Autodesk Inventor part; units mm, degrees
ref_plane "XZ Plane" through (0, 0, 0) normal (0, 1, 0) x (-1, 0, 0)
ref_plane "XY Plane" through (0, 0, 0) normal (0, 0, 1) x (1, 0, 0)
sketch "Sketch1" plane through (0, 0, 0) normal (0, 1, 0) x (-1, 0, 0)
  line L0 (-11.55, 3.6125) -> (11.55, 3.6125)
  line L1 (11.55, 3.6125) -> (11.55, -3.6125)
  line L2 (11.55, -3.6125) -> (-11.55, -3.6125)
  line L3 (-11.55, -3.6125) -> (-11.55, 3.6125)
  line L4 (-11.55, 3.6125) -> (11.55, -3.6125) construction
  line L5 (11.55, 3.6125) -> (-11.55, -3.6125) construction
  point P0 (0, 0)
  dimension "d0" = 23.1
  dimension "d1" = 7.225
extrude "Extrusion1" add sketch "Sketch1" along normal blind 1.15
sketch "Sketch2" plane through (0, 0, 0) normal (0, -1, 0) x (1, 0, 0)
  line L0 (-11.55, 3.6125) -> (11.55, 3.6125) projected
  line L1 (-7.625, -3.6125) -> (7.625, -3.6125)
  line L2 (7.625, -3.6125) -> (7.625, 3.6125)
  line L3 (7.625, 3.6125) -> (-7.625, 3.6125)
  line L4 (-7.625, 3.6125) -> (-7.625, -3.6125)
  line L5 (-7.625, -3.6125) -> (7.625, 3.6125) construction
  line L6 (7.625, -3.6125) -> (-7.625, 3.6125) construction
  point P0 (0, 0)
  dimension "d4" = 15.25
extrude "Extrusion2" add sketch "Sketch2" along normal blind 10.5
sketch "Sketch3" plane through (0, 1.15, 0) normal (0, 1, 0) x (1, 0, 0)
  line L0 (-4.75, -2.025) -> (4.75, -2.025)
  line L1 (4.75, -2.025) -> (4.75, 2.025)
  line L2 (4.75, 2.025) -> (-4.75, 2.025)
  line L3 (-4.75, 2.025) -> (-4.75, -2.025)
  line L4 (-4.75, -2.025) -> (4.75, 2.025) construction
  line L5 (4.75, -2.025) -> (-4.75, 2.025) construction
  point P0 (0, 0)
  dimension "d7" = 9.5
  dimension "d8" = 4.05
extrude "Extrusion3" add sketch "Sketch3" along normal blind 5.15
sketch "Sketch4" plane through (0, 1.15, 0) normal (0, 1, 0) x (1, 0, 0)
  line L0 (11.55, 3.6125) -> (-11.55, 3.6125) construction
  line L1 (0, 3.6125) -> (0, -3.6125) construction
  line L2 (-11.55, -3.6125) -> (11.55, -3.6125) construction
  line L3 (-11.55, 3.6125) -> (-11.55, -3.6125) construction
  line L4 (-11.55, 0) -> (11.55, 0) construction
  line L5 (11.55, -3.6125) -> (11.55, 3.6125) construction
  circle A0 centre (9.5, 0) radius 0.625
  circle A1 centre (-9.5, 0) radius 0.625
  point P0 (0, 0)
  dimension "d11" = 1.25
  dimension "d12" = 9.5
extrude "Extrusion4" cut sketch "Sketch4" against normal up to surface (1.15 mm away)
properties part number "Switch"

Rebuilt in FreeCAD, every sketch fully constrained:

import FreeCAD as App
import Part
import Sketcher
from FreeCAD import Vector


def add_polygon(sketch, points):
    """Adds a closed chain of lines whose ends are joined by coincident constraints."""
    first, n = sketch.GeometryCount, len(points)
    for a, b in zip(points, points[1:] + points[:1]):
        sketch.addGeometry(Part.LineSegment(App.Vector(*a, 0), App.Vector(*b, 0)), False)
    for i in range(n):
        sketch.addConstraint(Sketcher.Constraint("Coincident", first + i, 2, first + (i + 1) % n, 1))

doc = App.newDocument("Part")
body = doc.addObject("PartDesign::Body", "Body")

# Sketch on XZ plane
sketch1 = body.newObject("Sketcher::SketchObject", "Sketch")
sketch1.AttachmentSupport = (doc.getObject("XZ_Plane"), [""])
sketch1.MapMode = "FlatFace"
add_polygon(sketch1, [(-12, 4), (12, 4), (12, -4), (-12, -4)])  # lines 0-3
sketch1.addConstraint(Sketcher.Constraint("Horizontal", 0))
sketch1.addConstraint(Sketcher.Constraint("Vertical", 1))
sketch1.addConstraint(Sketcher.Constraint("Horizontal", 2))
sketch1.addConstraint(Sketcher.Constraint("Vertical", 3))
sketch1.addConstraint(Sketcher.Constraint("Symmetric", 0, 2, 2, 2, -1, 1))
sketch1.addConstraint(Sketcher.Constraint("DistanceX", 0, 1, 0, 2, 23.1))
sketch1.addConstraint(Sketcher.Constraint("DistanceY", 1, 2, 1, 1, 7.225))
pad1 = body.newObject("PartDesign::Pad", "Pad")
pad1.Profile = sketch1
pad1.Length = 1.15
pad1.Reversed = True

# Sketch on XZ plane
sketch2 = body.newObject("Sketcher::SketchObject", "Sketch001")
sketch2.AttachmentSupport = (doc.getObject("XZ_Plane"), [""])
sketch2.MapMode = "FlatFace"
add_polygon(sketch2, [(8, 4), (-8, 4), (-8, -4), (8, -4)])  # lines 0-3
sketch2.addConstraint(Sketcher.Constraint("Horizontal", 0))
sketch2.addConstraint(Sketcher.Constraint("Vertical", 1))
sketch2.addConstraint(Sketcher.Constraint("Horizontal", 2))
sketch2.addConstraint(Sketcher.Constraint("Vertical", 3))
sketch2.addConstraint(Sketcher.Constraint("Symmetric", 0, 2, 2, 2, -1, 1))
sketch2.addConstraint(Sketcher.Constraint("DistanceX", 0, 2, 0, 1, 15.25))
sketch2.addConstraint(Sketcher.Constraint("DistanceY", 1, 2, 1, 1, 7.225))
pad2 = body.newObject("PartDesign::Pad", "Pad001")
pad2.Profile = sketch2
pad2.Length = 10.5

# Sketch on XZ plane
sketch3 = body.newObject("Sketcher::SketchObject", "Sketch002")
sketch3.AttachmentSupport = (doc.getObject("XZ_Plane"), [""])
sketch3.MapMode = "FlatFace"
sketch3.AttachmentOffset = App.Placement(Vector(0, 0, -1.15), App.Rotation())
add_polygon(sketch3, [(-4.8, -2), (-4.8, 2), (4.8, 2), (4.8, -2)])  # lines 0-3
sketch3.addConstraint(Sketcher.Constraint("Vertical", 0))
sketch3.addConstraint(Sketcher.Constraint("Horizontal", 1))
sketch3.addConstraint(Sketcher.Constraint("Vertical", 2))
sketch3.addConstraint(Sketcher.Constraint("Horizontal", 3))
sketch3.addConstraint(Sketcher.Constraint("Symmetric", 0, 2, 2, 2, -1, 1))
sketch3.addConstraint(Sketcher.Constraint("DistanceX", 1, 1, 1, 2, 9.5))
sketch3.addConstraint(Sketcher.Constraint("DistanceY", 0, 1, 0, 2, 4.05))
pad3 = body.newObject("PartDesign::Pad", "Pad002")
pad3.Profile = sketch3
pad3.Length = 5.15
pad3.Reversed = True

# Sketch on XZ plane
sketch4 = body.newObject("Sketcher::SketchObject", "Sketch003")
sketch4.AttachmentSupport = (doc.getObject("XZ_Plane"), [""])
sketch4.MapMode = "FlatFace"
sketch4.AttachmentOffset = App.Placement(Vector(0, 0, -1.15), App.Rotation())
sketch4.addGeometry(Part.Circle(Vector(9.5, 0, 0), Vector(0, 0, 1), 0.6), False)
sketch4.addGeometry(Part.Circle(Vector(-9.5, 0, 0), Vector(0, 0, 1), 0.6), False)
sketch4.addConstraint(Sketcher.Constraint("Equal", 0, 1))
sketch4.addConstraint(Sketcher.Constraint("Symmetric", 0, 3, 1, 3, -1, 1))
sketch4.addConstraint(Sketcher.Constraint("PointOnObject", 0, 3, -1))
sketch4.addConstraint(Sketcher.Constraint("Diameter", 0, 1.25))
sketch4.addConstraint(Sketcher.Constraint("DistanceX", -1, 1, 0, 3, 9.5))
pocket1 = body.newObject("PartDesign::Pocket", "Pocket")
pocket1.Profile = sketch4
pocket1.Length = 1.15
pocket1.Reversed = True

doc.recompute()
